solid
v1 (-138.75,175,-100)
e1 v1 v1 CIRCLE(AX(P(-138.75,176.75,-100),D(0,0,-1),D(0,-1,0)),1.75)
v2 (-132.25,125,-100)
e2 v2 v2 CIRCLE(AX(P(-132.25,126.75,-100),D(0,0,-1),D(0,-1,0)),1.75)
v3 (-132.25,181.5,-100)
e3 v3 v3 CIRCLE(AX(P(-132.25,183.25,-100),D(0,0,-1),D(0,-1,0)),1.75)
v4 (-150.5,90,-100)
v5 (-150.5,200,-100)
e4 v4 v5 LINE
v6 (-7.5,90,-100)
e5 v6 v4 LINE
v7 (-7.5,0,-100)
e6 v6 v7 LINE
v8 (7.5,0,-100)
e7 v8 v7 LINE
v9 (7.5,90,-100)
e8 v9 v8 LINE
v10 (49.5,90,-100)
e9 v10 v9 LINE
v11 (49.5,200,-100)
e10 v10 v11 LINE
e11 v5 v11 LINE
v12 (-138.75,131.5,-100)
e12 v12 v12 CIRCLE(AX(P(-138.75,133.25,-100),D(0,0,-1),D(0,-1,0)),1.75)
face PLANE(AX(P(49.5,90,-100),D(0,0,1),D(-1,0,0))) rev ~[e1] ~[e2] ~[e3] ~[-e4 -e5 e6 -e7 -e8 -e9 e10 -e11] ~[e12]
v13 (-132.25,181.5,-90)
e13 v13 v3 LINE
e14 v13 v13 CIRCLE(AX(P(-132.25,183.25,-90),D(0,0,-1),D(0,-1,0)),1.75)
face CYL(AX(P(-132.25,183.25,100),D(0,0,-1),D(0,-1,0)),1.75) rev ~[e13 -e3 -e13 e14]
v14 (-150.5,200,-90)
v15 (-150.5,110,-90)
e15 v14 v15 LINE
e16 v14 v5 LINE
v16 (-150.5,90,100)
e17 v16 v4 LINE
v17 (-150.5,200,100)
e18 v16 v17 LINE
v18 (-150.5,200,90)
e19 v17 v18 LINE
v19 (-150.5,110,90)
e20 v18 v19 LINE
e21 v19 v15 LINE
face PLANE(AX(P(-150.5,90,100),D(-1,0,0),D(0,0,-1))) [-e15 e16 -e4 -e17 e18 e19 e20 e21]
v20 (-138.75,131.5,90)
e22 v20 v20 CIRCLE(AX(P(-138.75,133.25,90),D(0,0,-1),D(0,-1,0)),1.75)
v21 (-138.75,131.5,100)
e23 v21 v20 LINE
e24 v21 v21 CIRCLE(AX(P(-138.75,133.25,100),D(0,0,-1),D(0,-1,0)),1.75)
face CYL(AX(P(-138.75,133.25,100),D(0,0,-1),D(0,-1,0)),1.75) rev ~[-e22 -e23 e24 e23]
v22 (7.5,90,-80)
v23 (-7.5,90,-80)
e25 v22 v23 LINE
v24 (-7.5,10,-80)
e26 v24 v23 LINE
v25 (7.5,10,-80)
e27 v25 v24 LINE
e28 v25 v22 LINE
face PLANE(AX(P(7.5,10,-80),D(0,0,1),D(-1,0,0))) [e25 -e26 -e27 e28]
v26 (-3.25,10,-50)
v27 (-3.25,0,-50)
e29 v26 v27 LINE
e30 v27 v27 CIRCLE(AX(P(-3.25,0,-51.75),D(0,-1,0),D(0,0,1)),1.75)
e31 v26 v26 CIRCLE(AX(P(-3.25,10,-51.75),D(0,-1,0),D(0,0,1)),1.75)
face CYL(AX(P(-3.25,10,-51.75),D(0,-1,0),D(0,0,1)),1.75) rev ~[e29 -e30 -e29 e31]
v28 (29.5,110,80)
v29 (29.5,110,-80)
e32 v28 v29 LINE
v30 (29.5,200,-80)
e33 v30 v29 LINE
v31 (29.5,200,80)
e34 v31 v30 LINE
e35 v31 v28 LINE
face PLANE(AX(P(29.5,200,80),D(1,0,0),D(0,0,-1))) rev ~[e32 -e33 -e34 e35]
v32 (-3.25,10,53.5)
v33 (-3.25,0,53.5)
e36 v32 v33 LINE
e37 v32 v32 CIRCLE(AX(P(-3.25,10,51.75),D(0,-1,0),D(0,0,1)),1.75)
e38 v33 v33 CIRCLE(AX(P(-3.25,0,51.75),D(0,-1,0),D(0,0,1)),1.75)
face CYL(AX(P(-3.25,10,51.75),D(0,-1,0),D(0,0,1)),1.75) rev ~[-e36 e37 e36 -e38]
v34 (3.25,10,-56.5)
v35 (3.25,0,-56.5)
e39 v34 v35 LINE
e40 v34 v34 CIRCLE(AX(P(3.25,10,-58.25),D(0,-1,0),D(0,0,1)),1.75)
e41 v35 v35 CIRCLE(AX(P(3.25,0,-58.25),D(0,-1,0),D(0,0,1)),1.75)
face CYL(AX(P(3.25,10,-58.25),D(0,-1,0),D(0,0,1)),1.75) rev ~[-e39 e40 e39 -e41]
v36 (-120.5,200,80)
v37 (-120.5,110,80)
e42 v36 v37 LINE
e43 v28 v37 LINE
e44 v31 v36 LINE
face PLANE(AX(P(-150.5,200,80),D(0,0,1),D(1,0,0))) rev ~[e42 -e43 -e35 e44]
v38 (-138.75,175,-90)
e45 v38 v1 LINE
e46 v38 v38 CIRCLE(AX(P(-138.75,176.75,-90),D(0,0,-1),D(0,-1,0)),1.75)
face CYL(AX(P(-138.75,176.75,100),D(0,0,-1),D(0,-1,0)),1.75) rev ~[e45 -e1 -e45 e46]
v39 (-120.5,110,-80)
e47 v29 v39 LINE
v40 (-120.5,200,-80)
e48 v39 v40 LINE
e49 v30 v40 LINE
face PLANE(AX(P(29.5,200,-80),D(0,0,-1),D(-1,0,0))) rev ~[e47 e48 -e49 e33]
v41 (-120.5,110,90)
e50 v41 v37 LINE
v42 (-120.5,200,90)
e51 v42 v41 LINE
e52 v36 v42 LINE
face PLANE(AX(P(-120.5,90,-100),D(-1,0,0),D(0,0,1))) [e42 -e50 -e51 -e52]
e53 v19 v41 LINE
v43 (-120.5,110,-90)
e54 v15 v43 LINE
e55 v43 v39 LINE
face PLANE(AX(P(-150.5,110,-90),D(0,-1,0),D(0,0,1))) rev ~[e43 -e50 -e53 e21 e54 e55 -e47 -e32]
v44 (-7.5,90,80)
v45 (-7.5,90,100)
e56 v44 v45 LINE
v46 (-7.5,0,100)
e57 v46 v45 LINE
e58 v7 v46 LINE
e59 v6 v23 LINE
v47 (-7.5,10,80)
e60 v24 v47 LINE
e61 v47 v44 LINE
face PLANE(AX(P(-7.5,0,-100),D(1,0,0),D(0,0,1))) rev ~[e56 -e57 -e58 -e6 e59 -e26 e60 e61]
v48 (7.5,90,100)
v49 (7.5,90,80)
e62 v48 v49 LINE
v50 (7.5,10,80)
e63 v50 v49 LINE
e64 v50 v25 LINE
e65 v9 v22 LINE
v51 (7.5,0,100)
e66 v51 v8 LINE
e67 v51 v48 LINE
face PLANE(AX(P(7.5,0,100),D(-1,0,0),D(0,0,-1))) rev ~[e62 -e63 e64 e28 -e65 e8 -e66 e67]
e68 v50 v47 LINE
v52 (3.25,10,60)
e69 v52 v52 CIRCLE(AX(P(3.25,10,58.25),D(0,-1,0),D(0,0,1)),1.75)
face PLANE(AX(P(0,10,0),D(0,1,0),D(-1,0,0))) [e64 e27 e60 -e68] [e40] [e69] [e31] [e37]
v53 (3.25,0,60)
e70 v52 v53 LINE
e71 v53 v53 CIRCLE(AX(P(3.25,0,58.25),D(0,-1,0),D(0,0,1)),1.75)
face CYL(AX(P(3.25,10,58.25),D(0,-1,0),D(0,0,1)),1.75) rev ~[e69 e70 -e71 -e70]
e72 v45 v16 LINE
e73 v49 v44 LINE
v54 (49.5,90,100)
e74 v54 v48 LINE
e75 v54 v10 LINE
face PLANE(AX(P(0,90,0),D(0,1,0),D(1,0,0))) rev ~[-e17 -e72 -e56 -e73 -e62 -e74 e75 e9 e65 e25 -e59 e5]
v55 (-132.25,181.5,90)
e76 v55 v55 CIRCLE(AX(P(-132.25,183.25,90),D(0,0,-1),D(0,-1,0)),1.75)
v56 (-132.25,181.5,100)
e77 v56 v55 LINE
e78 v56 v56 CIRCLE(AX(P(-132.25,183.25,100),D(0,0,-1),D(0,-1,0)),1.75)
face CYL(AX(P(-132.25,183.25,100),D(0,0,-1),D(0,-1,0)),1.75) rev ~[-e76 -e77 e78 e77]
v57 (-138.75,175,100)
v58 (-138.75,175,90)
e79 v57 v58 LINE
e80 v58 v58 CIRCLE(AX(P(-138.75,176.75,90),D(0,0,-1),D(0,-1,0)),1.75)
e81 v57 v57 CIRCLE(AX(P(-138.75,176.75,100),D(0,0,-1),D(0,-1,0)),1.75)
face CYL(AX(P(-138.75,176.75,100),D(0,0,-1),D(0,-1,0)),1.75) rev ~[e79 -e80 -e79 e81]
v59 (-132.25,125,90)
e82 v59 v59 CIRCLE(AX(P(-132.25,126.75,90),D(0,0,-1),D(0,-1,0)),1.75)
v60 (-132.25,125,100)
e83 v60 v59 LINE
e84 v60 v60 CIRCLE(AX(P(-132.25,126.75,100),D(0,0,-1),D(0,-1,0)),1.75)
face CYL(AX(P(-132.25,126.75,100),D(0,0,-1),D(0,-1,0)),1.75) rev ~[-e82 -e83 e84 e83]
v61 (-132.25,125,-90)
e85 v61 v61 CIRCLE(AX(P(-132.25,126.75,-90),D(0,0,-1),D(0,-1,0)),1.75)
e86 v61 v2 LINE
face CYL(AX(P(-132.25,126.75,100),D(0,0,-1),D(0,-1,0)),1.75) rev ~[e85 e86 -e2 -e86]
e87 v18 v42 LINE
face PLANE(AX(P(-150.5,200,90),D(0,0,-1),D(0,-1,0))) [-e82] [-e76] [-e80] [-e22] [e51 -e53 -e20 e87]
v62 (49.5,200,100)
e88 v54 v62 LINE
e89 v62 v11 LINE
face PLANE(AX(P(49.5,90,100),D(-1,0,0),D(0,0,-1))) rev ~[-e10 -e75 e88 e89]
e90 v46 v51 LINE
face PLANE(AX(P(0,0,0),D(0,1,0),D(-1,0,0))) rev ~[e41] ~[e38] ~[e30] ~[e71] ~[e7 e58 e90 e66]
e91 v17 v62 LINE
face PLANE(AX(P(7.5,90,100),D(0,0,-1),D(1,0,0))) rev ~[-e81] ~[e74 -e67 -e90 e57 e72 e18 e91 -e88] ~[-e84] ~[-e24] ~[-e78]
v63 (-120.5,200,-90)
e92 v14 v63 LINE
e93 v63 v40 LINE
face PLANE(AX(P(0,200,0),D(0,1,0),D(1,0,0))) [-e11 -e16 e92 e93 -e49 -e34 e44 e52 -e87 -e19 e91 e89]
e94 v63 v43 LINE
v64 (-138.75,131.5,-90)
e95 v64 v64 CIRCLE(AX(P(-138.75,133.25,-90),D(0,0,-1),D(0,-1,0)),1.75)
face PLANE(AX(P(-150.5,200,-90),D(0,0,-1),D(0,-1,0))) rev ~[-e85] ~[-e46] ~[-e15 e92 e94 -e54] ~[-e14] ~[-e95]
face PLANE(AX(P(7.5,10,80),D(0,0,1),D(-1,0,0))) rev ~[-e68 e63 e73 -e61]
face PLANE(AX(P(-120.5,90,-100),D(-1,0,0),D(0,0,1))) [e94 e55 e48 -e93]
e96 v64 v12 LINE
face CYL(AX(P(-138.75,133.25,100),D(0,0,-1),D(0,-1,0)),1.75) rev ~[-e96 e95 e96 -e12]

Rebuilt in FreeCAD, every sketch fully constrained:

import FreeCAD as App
import Part
import Sketcher

V = App.Vector
Q = App.Units.Quantity

doc = App.newDocument("Part")
body = doc.addObject("PartDesign::Body", "Body")

# Sketch on XZ plane
sketch1 = doc.addObject("Sketcher::SketchObject", "Sketch")
body.addObject(sketch1)
sketch1.AttachmentSupport = (doc.XZ_Plane, [""])
sketch1.MapMode = "FlatFace"
sketch1.addGeometry([
    Part.LineSegment(V(-8, -100, 0), V(-8, 100, 0)),
    Part.LineSegment(V(-8, 100, 0), V(8, 100, 0)),
    Part.LineSegment(V(8, 100, 0), V(8, -100, 0)),
    Part.LineSegment(V(8, -100, 0), V(-8, -100, 0)),
], False)
sketch1.addConstraint([
    Sketcher.Constraint("Coincident", 0, 2, 1, 1),
    Sketcher.Constraint("Coincident", 1, 2, 2, 1),
    Sketcher.Constraint("Coincident", 2, 2, 3, 1),
    Sketcher.Constraint("Coincident", 3, 2, 0, 1),
    Sketcher.Constraint("Vertical", 0),
    Sketcher.Constraint("Horizontal", 1),
    Sketcher.Constraint("Vertical", 2),
    Sketcher.Constraint("Horizontal", 3),
    Sketcher.Constraint("Symmetric", 0, 2, 2, 2, -1, 1),
    Sketcher.Constraint("DistanceX", 1, 1, 1, 2, Q("15 mm")),
    Sketcher.Constraint("DistanceY", 0, 1, 0, 2, Q("200 mm")),
])
pad1 = doc.addObject("PartDesign::Pad", "Pad")
body.addObject(pad1)
pad1.Profile = sketch1
pad1.Length = 10
pad1.Reversed = True

# Sketch on XZ plane
sketch2 = doc.addObject("Sketcher::SketchObject", "Sketch001")
body.addObject(sketch2)
sketch2.AttachmentSupport = (doc.XZ_Plane, [""])
sketch2.MapMode = "FlatFace"
sketch2.AttachmentOffset = App.Placement(V(0, 0, -10), App.Rotation())
sketch2.addGeometry([
    Part.Circle(V(3.2, 58.2, 0), V(0, 0, 1), 1.8),
    Part.Circle(V(-3.2, 51.8, 0), V(0, 0, 1), 1.8),
    Part.Circle(V(3.2, -58.2, 0), V(0, 0, 1), 1.8),
    Part.Circle(V(-3.2, -51.8, 0), V(0, 0, 1), 1.8),
], False)
sketch2.addConstraint([
    Sketcher.Constraint("Equal", 0, 1),
    Sketcher.Constraint("Equal", 1, 2),
    Sketcher.Constraint("Equal", 2, 3),
    Sketcher.Constraint("Symmetric", 0, 3, 2, 3, -1),
    Sketcher.Constraint("Symmetric", 1, 3, 3, 3, -1),
    Sketcher.Constraint("Diameter", 0, Q("3.5 mm")),
    Sketcher.Constraint("DistanceY", 2, 3, 1, 3, Q("110 mm")),
    Sketcher.Constraint("DistanceX", 1, 3, 0, 3, Q("6.5 mm")),
    Sketcher.Constraint("DistanceY", 1, 3, 0, 3, Q("6.5 mm")),
    Sketcher.Constraint("DistanceX", -1, 1, 0, 3, Q("3.25 mm")),
])
doc.recompute()
hole = doc.addObject("PartDesign::Hole", "Hole")
body.addObject(hole)
hole.Profile = sketch2
hole.ThreadType = "None"
hole.Diameter = 3.5
hole.DepthType = "ThroughAll"
hole.Reversed = True

# Sketch on XZ plane
sketch3 = doc.addObject("Sketcher::SketchObject", "Sketch002")
body.addObject(sketch3)
sketch3.AttachmentSupport = (doc.XZ_Plane, [""])
sketch3.MapMode = "FlatFace"
sketch3.AttachmentOffset = App.Placement(V(0, 0, -10), App.Rotation())
sketch3.addGeometry([
    Part.LineSegment(V(8, -100, 0), V(-8, -100, 0)),  # 0
    Part.LineSegment(V(-8, -100, 0), V(-8, -80, 0)),  # 1
    Part.LineSegment(V(-8, -80, 0), V(8, -80, 0)),  # 2
    Part.LineSegment(V(8, -80, 0), V(8, -100, 0)),  # 3
    Part.LineSegment(V(8, 80, 0), V(-8, 80, 0)),  # 4
    Part.LineSegment(V(-8, 80, 0), V(-8, 100, 0)),  # 5
    Part.LineSegment(V(-8, 100, 0), V(8, 100, 0)),  # 6
    Part.LineSegment(V(8, 100, 0), V(8, 80, 0)),  # 7
], False)
sketch3.addConstraint([
    Sketcher.Constraint("Coincident", 0, 2, 1, 1),
    Sketcher.Constraint("Coincident", 1, 2, 2, 1),
    Sketcher.Constraint("Coincident", 2, 2, 3, 1),
    Sketcher.Constraint("Coincident", 3, 2, 0, 1),
    Sketcher.Constraint("Coincident", 4, 2, 5, 1),
    Sketcher.Constraint("Coincident", 5, 2, 6, 1),
    Sketcher.Constraint("Coincident", 6, 2, 7, 1),
    Sketcher.Constraint("Coincident", 7, 2, 4, 1),
    Sketcher.Constraint("Horizontal", 0),
    Sketcher.Constraint("Vertical", 1),
    Sketcher.Constraint("Horizontal", 2),
    Sketcher.Constraint("Vertical", 3),
    Sketcher.Constraint("Horizontal", 4),
    Sketcher.Constraint("Vertical", 5),
    Sketcher.Constraint("Horizontal", 6),
    Sketcher.Constraint("Vertical", 7),
    Sketcher.Constraint("Symmetric", 2, 2, 4, 2, -1, 1),
    Sketcher.Constraint("Symmetric", 0, 2, 6, 2, -1, 1),
    Sketcher.Constraint("Vertical", 1, 2, 4, 2),
    Sketcher.Constraint("DistanceX", 0, 2, 0, 1, Q("15 mm")),
    Sketcher.Constraint("DistanceY", 1, 1, 1, 2, Q("20 mm")),
    Sketcher.Constraint("DistanceY", 0, 2, -1, 1, Q("100 mm")),
])
pad2 = doc.addObject("PartDesign::Pad", "Pad001")
body.addObject(pad2)
pad2.Profile = sketch3
pad2.Length = 80
pad2.Reversed = True

# Sketch on XZ plane
sketch4 = doc.addObject("Sketcher::SketchObject", "Sketch003")
body.addObject(sketch4)
sketch4.AttachmentSupport = (doc.XZ_Plane, [""])
sketch4.MapMode = "FlatFace"
sketch4.AttachmentOffset = App.Placement(V(0, 0, -90), App.Rotation())
sketch4.addGeometry([
    Part.LineSegment(V(50, -100, 0), V(-150, -100, 0)),
    Part.LineSegment(V(-150, -100, 0), V(-150, 100, 0)),
    Part.LineSegment(V(-150, 100, 0), V(50, 100, 0)),
    Part.LineSegment(V(50, 100, 0), V(50, -100, 0)),
], False)
sketch4.addConstraint([
    Sketcher.Constraint("Coincident", 0, 2, 1, 1),
    Sketcher.Constraint("Coincident", 1, 2, 2, 1),
    Sketcher.Constraint("Coincident", 2, 2, 3, 1),
    Sketcher.Constraint("Coincident", 3, 2, 0, 1),
    Sketcher.Constraint("Horizontal", 0),
    Sketcher.Constraint("Vertical", 1),
    Sketcher.Constraint("Horizontal", 2),
    Sketcher.Constraint("Vertical", 3),
    Sketcher.Constraint("Equal", 2, 1),
    Sketcher.Constraint("DistanceX", 0, 2, 0, 1, Q("200 mm")),
    Sketcher.Constraint("DistanceY", 0, 2, -1, 1, Q("100 mm")),
    Sketcher.Constraint("DistanceX", 0, 2, -1, 1, Q("150.5 mm")),
])
pad3 = doc.addObject("PartDesign::Pad", "Pad002")
body.addObject(pad3)
pad3.Profile = sketch4
pad3.Length = 110
pad3.Reversed = True

# Sketch on XZ plane
sketch5 = doc.addObject("Sketcher::SketchObject", "Sketch004")
body.addObject(sketch5)
sketch5.AttachmentSupport = (doc.XZ_Plane, [""])
sketch5.MapMode = "FlatFace"
sketch5.AttachmentOffset = App.Placement(V(0, 0, -200), App.Rotation())
sketch5.addGeometry([
    Part.LineSegment(V(-150, 80, 0), V(30, 80, 0)),
    Part.LineSegment(V(30, 80, 0), V(30, -80, 0)),
    Part.LineSegment(V(30, -80, 0), V(-150, -80, 0)),
    Part.LineSegment(V(-150, -80, 0), V(-150, 80, 0)),
], False)
sketch5.addConstraint([
    Sketcher.Constraint("Coincident", 0, 2, 1, 1),
    Sketcher.Constraint("Coincident", 1, 2, 2, 1),
    Sketcher.Constraint("Coincident", 2, 2, 3, 1),
    Sketcher.Constraint("Coincident", 3, 2, 0, 1),
    Sketcher.Constraint("Horizontal", 0),
    Sketcher.Constraint("Vertical", 1),
    Sketcher.Constraint("Horizontal", 2),
    Sketcher.Constraint("Vertical", 3),
    Sketcher.Constraint("DistanceX", 0, 1, 0, 2, Q("180 mm")),
    Sketcher.Constraint("DistanceY", 1, 2, 1, 1, Q("160 mm")),
    Sketcher.Constraint("DistanceY", -1, 1, 0, 2, Q("80 mm")),
    Sketcher.Constraint("DistanceX", -1, 1, 0, 2, Q("29.5 mm")),
])
pocket1 = doc.addObject("PartDesign::Pocket", "Pocket")
body.addObject(pocket1)
pocket1.Profile = sketch5
pocket1.Length = 90
pocket1.Reversed = True

# Sketch on YZ plane
sketch6 = doc.addObject("Sketcher::SketchObject", "Sketch005")
body.addObject(sketch6)
sketch6.AttachmentSupport = (doc.YZ_Plane, [""])
sketch6.MapMode = "FlatFace"
sketch6.AttachmentOffset = App.Placement(V(0, 0, -150.5), App.Rotation())
sketch6.addGeometry([
    Part.LineSegment(V(200, 90, 0), V(200, 80, 0)),  # 0
    Part.LineSegment(V(200, 80, 0), V(110, 80, 0)),  # 1
    Part.LineSegment(V(110, 80, 0), V(110, 90, 0)),  # 2
    Part.LineSegment(V(110, 90, 0), V(200, 90, 0)),  # 3
    Part.LineSegment(V(200, -80, 0), V(200, -90, 0)),  # 4
    Part.LineSegment(V(200, -90, 0), V(110, -90, 0)),  # 5
    Part.LineSegment(V(110, -90, 0), V(110, -80, 0)),  # 6
    Part.LineSegment(V(110, -80, 0), V(200, -80, 0)),  # 7
], False)
sketch6.addConstraint([
    Sketcher.Constraint("Coincident", 0, 2, 1, 1),
    Sketcher.Constraint("Coincident", 1, 2, 2, 1),
    Sketcher.Constraint("Coincident", 2, 2, 3, 1),
    Sketcher.Constraint("Coincident", 3, 2, 0, 1),
    Sketcher.Constraint("Coincident", 4, 2, 5, 1),
    Sketcher.Constraint("Coincident", 5, 2, 6, 1),
    Sketcher.Constraint("Coincident", 6, 2, 7, 1),
    Sketcher.Constraint("Coincident", 7, 2, 4, 1),
    Sketcher.Constraint("Vertical", 0),
    Sketcher.Constraint("Horizontal", 1),
    Sketcher.Constraint("Vertical", 2),
    Sketcher.Constraint("Horizontal", 3),
    Sketcher.Constraint("Vertical", 4),
    Sketcher.Constraint("Horizontal", 5),
    Sketcher.Constraint("Vertical", 6),
    Sketcher.Constraint("Horizontal", 7),
    Sketcher.Constraint("Symmetric", 3, 2, 4, 2, -1),
    Sketcher.Constraint("Symmetric", 1, 2, 6, 2, -1),
    Sketcher.Constraint("DistanceY", 0, 2, 0, 1, Q("10 mm")),
    Sketcher.Constraint("DistanceX", 1, 2, 1, 1, Q("90 mm")),
    Sketcher.Constraint("DistanceX", -1, 1, 0, 2, Q("200 mm")),
    Sketcher.Constraint("DistanceY", -1, 1, 0, 2, Q("80 mm")),
])
pocket2 = doc.addObject("PartDesign::Pocket", "Pocket001")
body.addObject(pocket2)
pocket2.Profile = sketch6
pocket2.Length = 30
pocket2.Reversed = True

# Sketch on XY plane
sketch7 = doc.addObject("Sketcher::SketchObject", "Sketch006")
body.addObject(sketch7)
sketch7.AttachmentSupport = (doc.XY_Plane, [""])
sketch7.MapMode = "FlatFace"
sketch7.AttachmentOffset = App.Placement(V(0, 0, 100), App.Rotation())
sketch7.addGeometry([
    Part.Circle(V(-132.2, 183.2, 0), V(0, 0, 1), 1.8),
    Part.Circle(V(-138.8, 176.8, 0), V(0, 0, 1), 1.8),
    Part.Circle(V(-138.8, 133.2, 0), V(0, 0, 1), 1.8),
    Part.Circle(V(-132.2, 126.8, 0), V(0, 0, 1), 1.8),
], False)
sketch7.addConstraint([
    Sketcher.Constraint("Equal", 0, 1),
    Sketcher.Constraint("Equal", 1, 2),
    Sketcher.Constraint("Equal", 2, 3),
    Sketcher.Constraint("Vertical", 1, 3, 2, 3),
    Sketcher.Constraint("Vertical", 0, 3, 3, 3),
    Sketcher.Constraint("Diameter", 0, Q("3.5 mm")),
    Sketcher.Constraint("DistanceY", 2, 3, 0, 3, Q("50 mm")),
    Sketcher.Constraint("DistanceY", 3, 3, 1, 3, Q("50 mm")),
    Sketcher.Constraint("DistanceX", 1, 3, 0, 3, Q("6.5 mm")),
    Sketcher.Constraint("DistanceY", 1, 3, 0, 3, Q("6.5 mm")),
    Sketcher.Constraint("DistanceX", 0, 3, -1, 1, Q("132.25 mm")),
    Sketcher.Constraint("DistanceY", -1, 1, 0, 3, Q("183.25 mm")),
])
doc.recompute()
hole2 = doc.addObject("PartDesign::Hole", "Hole001")
body.addObject(hole2)
hole2.Profile = sketch7
hole2.ThreadType = "None"
hole2.Diameter = 3.5
hole2.DepthType = "ThroughAll"

doc.recompute()
